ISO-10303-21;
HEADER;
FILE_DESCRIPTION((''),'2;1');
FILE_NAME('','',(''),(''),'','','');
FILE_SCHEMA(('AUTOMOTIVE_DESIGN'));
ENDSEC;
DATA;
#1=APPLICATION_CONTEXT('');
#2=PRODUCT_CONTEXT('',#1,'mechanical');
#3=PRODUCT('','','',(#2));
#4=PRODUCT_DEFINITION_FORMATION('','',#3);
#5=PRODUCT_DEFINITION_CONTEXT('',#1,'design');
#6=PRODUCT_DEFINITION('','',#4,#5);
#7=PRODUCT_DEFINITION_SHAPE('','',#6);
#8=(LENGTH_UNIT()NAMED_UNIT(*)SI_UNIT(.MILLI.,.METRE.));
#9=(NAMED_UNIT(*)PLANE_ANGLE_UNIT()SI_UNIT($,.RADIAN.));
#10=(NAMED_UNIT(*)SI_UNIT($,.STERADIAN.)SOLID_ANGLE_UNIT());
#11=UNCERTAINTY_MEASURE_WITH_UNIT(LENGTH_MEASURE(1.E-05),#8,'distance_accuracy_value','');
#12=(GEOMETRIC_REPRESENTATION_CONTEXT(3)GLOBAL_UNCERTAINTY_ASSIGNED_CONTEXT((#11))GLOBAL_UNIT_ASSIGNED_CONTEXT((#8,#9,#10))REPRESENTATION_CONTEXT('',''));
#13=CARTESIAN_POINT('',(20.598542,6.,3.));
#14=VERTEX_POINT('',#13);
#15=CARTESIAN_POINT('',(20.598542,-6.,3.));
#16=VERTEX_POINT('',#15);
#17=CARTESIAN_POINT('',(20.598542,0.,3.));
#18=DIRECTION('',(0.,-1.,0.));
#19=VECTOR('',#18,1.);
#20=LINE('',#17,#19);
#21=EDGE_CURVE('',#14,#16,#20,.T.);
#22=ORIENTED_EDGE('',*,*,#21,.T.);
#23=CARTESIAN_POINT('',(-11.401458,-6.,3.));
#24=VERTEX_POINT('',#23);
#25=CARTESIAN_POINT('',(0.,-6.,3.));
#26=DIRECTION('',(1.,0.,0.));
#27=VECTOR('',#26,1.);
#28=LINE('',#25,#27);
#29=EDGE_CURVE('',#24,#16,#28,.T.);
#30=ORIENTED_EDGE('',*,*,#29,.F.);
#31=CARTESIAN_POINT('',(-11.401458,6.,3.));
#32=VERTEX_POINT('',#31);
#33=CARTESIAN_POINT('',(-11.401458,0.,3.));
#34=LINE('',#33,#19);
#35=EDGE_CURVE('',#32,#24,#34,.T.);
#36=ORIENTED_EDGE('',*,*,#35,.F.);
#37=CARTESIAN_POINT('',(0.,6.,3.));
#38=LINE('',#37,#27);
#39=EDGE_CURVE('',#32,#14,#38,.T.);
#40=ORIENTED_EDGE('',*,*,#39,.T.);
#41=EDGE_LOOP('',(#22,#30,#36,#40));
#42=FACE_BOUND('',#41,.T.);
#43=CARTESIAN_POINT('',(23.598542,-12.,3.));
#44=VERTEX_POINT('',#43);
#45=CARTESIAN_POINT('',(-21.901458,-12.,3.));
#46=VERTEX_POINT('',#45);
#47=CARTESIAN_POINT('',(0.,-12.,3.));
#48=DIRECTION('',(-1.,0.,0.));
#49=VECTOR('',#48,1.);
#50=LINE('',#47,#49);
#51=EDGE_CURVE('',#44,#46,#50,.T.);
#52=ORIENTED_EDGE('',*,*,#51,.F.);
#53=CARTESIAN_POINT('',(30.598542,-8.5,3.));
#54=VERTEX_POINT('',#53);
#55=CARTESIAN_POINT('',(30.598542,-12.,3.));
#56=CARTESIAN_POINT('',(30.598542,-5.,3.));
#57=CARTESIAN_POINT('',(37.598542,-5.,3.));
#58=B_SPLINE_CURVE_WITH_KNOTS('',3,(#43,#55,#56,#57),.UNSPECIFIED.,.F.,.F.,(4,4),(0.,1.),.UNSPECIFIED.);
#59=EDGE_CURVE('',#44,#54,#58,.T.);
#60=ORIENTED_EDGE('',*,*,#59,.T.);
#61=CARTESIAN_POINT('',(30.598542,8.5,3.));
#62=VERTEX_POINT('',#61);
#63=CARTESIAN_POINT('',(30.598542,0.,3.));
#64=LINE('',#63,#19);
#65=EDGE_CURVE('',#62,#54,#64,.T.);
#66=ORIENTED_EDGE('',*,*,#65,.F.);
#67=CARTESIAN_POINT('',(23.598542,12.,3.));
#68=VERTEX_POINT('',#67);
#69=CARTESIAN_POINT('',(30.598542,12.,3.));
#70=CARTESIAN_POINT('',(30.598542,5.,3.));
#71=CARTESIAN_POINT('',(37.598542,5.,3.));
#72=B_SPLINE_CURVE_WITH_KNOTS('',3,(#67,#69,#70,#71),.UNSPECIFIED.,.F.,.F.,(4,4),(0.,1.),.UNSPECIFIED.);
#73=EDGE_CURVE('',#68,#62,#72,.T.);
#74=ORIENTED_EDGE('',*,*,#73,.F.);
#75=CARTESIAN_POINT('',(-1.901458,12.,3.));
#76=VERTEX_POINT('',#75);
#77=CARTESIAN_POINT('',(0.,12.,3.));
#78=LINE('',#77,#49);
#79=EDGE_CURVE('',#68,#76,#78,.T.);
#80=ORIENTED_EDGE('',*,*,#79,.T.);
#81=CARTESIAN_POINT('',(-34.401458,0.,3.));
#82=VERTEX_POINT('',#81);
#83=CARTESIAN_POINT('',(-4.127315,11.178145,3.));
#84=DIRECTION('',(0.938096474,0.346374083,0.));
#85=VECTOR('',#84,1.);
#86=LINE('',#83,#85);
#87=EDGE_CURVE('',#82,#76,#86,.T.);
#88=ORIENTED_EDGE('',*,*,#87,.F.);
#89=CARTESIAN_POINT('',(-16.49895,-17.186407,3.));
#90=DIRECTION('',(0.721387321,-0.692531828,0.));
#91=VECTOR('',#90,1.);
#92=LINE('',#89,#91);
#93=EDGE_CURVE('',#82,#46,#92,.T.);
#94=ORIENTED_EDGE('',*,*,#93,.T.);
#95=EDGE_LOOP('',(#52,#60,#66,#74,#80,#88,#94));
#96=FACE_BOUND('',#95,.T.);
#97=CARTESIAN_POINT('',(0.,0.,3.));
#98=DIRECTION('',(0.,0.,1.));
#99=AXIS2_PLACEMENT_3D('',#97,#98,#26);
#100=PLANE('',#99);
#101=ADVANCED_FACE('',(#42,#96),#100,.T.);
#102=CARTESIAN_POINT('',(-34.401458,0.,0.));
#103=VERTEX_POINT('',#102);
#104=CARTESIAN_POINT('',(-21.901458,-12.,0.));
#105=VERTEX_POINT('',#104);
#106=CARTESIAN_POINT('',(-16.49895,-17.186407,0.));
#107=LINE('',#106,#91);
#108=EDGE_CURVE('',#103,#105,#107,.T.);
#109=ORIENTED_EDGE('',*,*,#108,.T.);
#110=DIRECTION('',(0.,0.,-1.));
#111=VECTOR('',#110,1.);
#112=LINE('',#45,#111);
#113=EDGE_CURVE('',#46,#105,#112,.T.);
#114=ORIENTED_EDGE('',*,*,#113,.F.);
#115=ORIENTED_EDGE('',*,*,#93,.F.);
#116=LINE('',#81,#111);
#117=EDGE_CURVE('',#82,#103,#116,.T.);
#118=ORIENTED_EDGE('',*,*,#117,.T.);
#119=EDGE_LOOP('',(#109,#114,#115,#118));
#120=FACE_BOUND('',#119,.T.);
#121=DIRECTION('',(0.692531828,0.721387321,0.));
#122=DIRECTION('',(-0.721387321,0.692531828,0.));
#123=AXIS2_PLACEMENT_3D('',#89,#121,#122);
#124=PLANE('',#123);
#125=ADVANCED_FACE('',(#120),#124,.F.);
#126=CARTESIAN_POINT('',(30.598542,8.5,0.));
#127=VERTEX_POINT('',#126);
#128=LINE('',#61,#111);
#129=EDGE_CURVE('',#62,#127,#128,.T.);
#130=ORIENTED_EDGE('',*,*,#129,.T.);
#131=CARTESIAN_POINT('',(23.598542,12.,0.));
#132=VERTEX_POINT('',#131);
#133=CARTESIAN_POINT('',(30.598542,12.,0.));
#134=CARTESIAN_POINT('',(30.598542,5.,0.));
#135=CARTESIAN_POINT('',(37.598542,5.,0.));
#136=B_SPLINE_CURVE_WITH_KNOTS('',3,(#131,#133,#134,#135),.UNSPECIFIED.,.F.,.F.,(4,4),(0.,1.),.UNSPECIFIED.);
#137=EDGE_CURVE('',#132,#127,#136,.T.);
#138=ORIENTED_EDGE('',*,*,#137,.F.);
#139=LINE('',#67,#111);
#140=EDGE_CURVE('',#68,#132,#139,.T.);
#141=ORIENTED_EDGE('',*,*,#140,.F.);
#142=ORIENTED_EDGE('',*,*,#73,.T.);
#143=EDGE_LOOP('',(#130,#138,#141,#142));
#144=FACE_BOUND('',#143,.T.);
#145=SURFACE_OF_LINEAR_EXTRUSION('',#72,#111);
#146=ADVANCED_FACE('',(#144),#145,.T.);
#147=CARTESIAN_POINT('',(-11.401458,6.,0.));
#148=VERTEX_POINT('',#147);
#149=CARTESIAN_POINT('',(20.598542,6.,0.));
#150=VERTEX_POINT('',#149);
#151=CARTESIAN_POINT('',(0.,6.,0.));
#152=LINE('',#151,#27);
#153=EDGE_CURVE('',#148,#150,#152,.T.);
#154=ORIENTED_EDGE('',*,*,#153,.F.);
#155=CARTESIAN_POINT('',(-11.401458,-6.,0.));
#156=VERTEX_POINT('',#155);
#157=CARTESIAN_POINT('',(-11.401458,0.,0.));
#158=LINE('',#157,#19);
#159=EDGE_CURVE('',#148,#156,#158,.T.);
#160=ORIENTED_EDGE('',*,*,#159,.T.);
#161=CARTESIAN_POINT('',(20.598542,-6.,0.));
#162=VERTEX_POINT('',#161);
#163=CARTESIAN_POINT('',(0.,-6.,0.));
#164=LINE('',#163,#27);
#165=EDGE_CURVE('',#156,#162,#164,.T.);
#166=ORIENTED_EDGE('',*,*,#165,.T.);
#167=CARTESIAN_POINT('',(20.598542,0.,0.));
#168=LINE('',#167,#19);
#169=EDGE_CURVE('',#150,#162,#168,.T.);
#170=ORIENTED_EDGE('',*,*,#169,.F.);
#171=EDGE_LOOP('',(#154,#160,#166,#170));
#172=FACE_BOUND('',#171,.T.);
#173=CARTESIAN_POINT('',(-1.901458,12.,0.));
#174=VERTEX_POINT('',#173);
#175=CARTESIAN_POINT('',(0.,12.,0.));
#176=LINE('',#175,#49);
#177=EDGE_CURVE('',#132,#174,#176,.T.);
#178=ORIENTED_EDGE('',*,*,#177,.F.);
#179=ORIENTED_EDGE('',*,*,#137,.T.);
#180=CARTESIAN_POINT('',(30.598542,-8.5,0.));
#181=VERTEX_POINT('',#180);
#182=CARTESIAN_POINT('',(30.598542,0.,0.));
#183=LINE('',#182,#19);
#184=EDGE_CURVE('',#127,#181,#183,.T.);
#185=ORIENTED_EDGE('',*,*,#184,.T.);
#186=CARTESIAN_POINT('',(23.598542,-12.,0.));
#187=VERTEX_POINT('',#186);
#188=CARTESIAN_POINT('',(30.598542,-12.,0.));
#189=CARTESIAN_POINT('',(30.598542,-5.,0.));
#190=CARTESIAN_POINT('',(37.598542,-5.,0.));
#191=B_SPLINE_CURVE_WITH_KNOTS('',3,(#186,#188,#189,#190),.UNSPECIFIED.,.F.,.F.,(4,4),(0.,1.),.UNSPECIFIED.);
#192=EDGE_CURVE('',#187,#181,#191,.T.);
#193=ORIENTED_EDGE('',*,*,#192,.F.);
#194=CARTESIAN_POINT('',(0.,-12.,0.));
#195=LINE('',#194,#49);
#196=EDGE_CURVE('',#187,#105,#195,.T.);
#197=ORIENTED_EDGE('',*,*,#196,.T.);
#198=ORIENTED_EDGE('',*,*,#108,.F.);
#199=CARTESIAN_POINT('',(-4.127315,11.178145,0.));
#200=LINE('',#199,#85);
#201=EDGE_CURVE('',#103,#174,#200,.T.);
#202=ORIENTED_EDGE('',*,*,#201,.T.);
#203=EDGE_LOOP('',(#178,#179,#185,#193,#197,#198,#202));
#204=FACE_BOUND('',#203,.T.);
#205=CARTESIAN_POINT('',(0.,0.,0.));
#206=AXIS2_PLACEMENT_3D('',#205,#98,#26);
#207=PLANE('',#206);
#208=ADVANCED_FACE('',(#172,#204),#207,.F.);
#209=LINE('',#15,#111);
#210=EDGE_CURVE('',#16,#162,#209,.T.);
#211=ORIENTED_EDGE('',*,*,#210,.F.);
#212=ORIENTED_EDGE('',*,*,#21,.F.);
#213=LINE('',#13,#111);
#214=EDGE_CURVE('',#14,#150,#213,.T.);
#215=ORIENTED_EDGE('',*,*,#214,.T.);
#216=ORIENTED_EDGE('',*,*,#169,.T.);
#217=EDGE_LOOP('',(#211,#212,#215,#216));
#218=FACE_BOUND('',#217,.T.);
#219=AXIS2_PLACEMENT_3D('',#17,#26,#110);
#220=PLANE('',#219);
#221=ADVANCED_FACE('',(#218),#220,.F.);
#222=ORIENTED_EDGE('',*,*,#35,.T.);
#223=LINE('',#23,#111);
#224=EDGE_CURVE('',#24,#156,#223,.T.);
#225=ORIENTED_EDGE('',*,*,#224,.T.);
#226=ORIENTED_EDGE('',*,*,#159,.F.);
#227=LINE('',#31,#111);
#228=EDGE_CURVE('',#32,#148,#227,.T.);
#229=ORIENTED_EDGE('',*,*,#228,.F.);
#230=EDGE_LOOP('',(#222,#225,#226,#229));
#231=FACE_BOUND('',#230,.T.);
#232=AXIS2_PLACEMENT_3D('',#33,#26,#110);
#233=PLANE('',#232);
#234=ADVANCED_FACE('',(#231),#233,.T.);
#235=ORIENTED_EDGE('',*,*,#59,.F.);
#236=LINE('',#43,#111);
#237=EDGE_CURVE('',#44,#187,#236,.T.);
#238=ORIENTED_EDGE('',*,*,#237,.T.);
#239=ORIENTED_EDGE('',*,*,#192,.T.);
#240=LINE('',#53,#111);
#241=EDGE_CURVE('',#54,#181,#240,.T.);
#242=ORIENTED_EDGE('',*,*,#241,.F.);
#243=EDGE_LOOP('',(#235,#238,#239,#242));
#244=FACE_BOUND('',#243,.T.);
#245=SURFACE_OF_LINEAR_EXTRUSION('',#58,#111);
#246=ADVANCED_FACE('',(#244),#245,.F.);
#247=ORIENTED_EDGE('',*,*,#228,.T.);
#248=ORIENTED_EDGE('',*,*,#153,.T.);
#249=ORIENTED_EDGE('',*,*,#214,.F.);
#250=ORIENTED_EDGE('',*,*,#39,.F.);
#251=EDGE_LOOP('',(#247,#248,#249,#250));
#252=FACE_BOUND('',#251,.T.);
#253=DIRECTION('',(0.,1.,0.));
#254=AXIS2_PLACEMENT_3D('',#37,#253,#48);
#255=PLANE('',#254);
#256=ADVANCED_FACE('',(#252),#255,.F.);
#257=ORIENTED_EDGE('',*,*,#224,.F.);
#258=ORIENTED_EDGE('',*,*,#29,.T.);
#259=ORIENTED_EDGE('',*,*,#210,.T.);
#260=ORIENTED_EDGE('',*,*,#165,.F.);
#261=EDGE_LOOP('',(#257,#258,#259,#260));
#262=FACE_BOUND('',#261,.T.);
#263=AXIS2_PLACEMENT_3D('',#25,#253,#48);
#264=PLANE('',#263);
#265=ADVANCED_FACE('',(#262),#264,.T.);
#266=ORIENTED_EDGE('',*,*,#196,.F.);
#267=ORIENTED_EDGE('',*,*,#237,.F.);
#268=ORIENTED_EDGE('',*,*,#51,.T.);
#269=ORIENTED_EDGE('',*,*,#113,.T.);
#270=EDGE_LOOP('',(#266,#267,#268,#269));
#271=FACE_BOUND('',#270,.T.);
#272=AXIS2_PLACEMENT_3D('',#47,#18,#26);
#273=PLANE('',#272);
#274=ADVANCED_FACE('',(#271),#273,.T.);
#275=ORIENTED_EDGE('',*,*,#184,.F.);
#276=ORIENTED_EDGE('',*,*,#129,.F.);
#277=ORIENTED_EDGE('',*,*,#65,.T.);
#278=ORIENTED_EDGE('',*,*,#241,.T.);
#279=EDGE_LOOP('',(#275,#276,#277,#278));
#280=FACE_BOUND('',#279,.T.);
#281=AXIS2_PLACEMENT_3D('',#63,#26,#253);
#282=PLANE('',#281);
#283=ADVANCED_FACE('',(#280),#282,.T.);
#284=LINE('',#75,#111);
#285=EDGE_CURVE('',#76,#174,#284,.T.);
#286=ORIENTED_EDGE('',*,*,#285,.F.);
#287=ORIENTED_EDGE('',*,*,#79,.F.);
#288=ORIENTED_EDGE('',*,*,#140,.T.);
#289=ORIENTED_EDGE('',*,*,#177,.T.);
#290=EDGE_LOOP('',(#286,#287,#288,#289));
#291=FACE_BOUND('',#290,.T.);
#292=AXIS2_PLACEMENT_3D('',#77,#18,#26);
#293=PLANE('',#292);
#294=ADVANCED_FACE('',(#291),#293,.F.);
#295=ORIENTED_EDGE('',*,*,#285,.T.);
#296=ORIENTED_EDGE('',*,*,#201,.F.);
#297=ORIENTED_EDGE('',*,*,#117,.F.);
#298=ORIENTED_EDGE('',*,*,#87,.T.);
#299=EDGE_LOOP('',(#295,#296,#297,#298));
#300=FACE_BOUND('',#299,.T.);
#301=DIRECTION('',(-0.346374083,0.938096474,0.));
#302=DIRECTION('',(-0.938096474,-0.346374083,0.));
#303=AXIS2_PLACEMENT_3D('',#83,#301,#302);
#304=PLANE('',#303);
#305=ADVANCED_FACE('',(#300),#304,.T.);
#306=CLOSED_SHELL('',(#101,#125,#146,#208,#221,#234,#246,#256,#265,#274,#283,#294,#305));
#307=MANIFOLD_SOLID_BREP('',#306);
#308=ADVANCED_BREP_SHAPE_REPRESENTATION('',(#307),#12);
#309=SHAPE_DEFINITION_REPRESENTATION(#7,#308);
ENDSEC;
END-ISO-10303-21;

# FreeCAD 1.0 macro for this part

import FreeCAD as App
import Part
import Sketcher
from FreeCAD import Vector


def add_polygon(sketch, points):
    """Adds a closed chain of lines whose ends are joined by coincident constraints."""
    first, n = sketch.GeometryCount, len(points)
    for a, b in zip(points, points[1:] + points[:1]):
        sketch.addGeometry(Part.LineSegment(App.Vector(*a, 0), App.Vector(*b, 0)), False)
    for i in range(n):
        sketch.addConstraint(Sketcher.Constraint("Coincident", first + i, 2, first + (i + 1) % n, 1))

doc = App.newDocument("Part")
body = doc.addObject("PartDesign::Body", "Body")

# Sketch on XY plane
sketch1 = body.newObject("Sketcher::SketchObject", "Sketch")
sketch1.AttachmentSupport = (doc.getObject("XY_Plane"), [""])
sketch1.MapMode = "FlatFace"
sketch1.addGeometry(Part.LineSegment(Vector(-1.901458, 12, 0), Vector(-34.401458, 0, 0)), False)  # 0
sketch1.addGeometry(Part.LineSegment(Vector(-34.401458, 0, 0), Vector(-21.901458, -12, 0)), False)  # 1
sketch1.addGeometry(Part.LineSegment(Vector(-21.901458, -12, 0), Vector(23.598542, -12, 0)), False)  # 2
sketch1.addGeometry(Part.BSplineCurve([Vector(23.598542, -12, 0), Vector(27.098542, -12, 0), Vector(28.848542, -10.25, 0), Vector(30.598542, -8.5, 0)], [4, 4], [0, 0.5], False, 3, [1, 1, 1, 1], False), False)  # 3
sketch1.addGeometry(Part.LineSegment(Vector(30.598542, -8.5, 0), Vector(30.598542, 8.5, 0)), False)  # 4
sketch1.addGeometry(Part.BSplineCurve([Vector(23.598542, 12, 0), Vector(27.098542, 12, 0), Vector(28.848542, 10.25, 0), Vector(30.598542, 8.5, 0)], [4, 4], [0, 0.5], False, 3, [1, 1, 1, 1], False), False)  # 5
sketch1.addGeometry(Part.LineSegment(Vector(23.598542, 12, 0), Vector(-1.901458, 12, 0)), False)  # 6
add_polygon(sketch1, [(20.598542, -6), (-11.401458, -6), (-11.401458, 6), (20.598542, 6)])  # lines 7-10
sketch1.addConstraint([
    Sketcher.Constraint("Block", 3),
    Sketcher.Constraint("Block", 5),
    Sketcher.Constraint("Coincident", 0, 2, 1, 1),
    Sketcher.Constraint("Coincident", 1, 2, 2, 1),
    Sketcher.Constraint("Coincident", 2, 2, 3, 1),
    Sketcher.Constraint("Coincident", 3, 2, 4, 1),
    Sketcher.Constraint("Coincident", 4, 2, 5, 2),
    Sketcher.Constraint("Coincident", 5, 1, 6, 1),
    Sketcher.Constraint("Coincident", 6, 2, 0, 1),
    Sketcher.Constraint("Horizontal", 2),
    Sketcher.Constraint("Horizontal", 6),
    Sketcher.Constraint("Horizontal", 7),
    Sketcher.Constraint("Vertical", 8),
    Sketcher.Constraint("Horizontal", 9),
    Sketcher.Constraint("Vertical", 10),
    Sketcher.Constraint("PointOnObject", 0, 2, -1),
    Sketcher.Constraint("DistanceX", 7, 2, 7, 1, 32.0),
    Sketcher.Constraint("DistanceY", 8, 1, 8, 2, 12.0),
    Sketcher.Constraint("DistanceX", 2, 1, 2, 2, 45.5),
    Sketcher.Constraint("DistanceX", 6, 2, 6, 1, 25.5),
    Sketcher.Constraint("DistanceY", 7, 2, -1, 1, 6.0),
    Sketcher.Constraint("DistanceX", 0, 2, 2, 2, 58.0),
    Sketcher.Constraint("DistanceX", 0, 2, 7, 2, 23.0),
])
pad1 = body.newObject("PartDesign::Pad", "Pad")
pad1.Profile = sketch1
pad1.Length = 3

doc.recompute()
